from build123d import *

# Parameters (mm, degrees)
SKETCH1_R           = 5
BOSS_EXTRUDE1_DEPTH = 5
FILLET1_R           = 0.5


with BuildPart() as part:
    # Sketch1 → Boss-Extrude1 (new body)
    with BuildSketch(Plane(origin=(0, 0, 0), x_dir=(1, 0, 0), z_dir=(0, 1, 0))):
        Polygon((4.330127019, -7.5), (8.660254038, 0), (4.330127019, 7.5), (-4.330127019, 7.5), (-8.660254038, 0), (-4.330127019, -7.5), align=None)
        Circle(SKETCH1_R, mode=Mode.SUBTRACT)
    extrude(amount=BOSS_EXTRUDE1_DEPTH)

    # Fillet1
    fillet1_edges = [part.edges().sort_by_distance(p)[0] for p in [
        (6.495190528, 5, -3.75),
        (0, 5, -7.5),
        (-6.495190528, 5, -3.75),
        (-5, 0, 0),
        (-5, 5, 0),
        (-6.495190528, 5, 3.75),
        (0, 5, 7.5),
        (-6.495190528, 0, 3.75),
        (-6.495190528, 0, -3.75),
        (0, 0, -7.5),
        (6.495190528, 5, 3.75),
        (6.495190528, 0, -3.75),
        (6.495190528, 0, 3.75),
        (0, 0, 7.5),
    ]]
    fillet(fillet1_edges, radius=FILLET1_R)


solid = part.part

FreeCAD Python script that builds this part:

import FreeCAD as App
import Part
import Sketcher

V = App.Vector
Q = App.Units.Quantity


def edges_at(feature, points):
    """Names of the edges that pass closest to the given points."""
    edges = feature.Shape.Edges
    near = lambda p: min(range(len(edges)), key=lambda i: edges[i].distToShape(Part.Vertex(*p))[0])
    return sorted({f"Edge{near(p) + 1}" for p in points})

doc = App.newDocument("Part")
params = doc.addObject("Spreadsheet::Sheet", "Params")
for row, (alias, value) in enumerate([
    ("sketch1_diameter", "10 mm"),
    ("pad1_length", "5 mm"),
    ("fillet_radius", "0.5 mm"),
], start=1):
    params.set(f"A{row}", alias)
    params.set(f"B{row}", "=" + value)
    params.setAlias(f"B{row}", alias)

body = doc.addObject("PartDesign::Body", "Body")

# Sketch on XZ plane
sketch1 = body.newObject("Sketcher::SketchObject", "Sketch")
sketch1.AttachmentSupport = (doc.getObject("XZ_Plane"), [""])
sketch1.MapMode = "FlatFace"
sketch1.addGeometry(Part.LineSegment(V(4, 8, 0), V(9, 0, 0)), False)
sketch1.addGeometry(Part.LineSegment(V(9, 0, 0), V(4, -8, 0)), False)
sketch1.addGeometry(Part.LineSegment(V(4, -8, 0), V(-4, -8, 0)), False)
sketch1.addGeometry(Part.LineSegment(V(-4, -8, 0), V(-9, 0, 0)), False)
sketch1.addGeometry(Part.LineSegment(V(-9, 0, 0), V(-4, 8, 0)), False)
sketch1.addGeometry(Part.LineSegment(V(-4, 8, 0), V(4, 8, 0)), False)
sketch1.addGeometry(Part.Circle(V(0, 0, 0), V(0, 0, 1), 5), False)
sketch1.addConstraint(Sketcher.Constraint("Coincident", 0, 2, 1, 1))
sketch1.addConstraint(Sketcher.Constraint("Coincident", 1, 2, 2, 1))
sketch1.addConstraint(Sketcher.Constraint("Coincident", 2, 2, 3, 1))
sketch1.addConstraint(Sketcher.Constraint("Coincident", 3, 2, 4, 1))
sketch1.addConstraint(Sketcher.Constraint("Coincident", 4, 2, 5, 1))
sketch1.addConstraint(Sketcher.Constraint("Coincident", 5, 2, 0, 1))
sketch1.addConstraint(Sketcher.Constraint("Horizontal", 2))
sketch1.addConstraint(Sketcher.Constraint("Horizontal", 5))
sketch1.addConstraint(Sketcher.Constraint("Coincident", 6, 3, -1, 1))
sketch1.addConstraint(Sketcher.Constraint("Symmetric", 0, 2, 3, 2, -1, 1))
sketch1.addConstraint(Sketcher.Constraint("Symmetric", 1, 2, 4, 2, -1, 1))
sketch1.addConstraint(Sketcher.Constraint("PointOnObject", 0, 2, -1))
sketch1.addConstraint(Sketcher.Constraint("Parallel", 0, 3))
sketch1.addConstraint(Sketcher.Constraint("Vertical", 2, 2, 4, 2))
sketch1.addConstraint(Sketcher.Constraint("Diameter", 6, Q("10 mm")))
sketch1.addConstraint(Sketcher.Constraint("Angle", 0, Q("-60 deg")))
sketch1.addConstraint(Sketcher.Constraint("DistanceY", 2, 2, 4, 2, Q("15 mm")))
sketch1.addConstraint(Sketcher.Constraint("DistanceX", 2, 2, 2, 1, Q("8.660254 mm")))
sketch1.setExpression("Constraints[14]", "Params.sketch1_diameter")
pad1 = body.newObject("PartDesign::Pad", "Pad")
pad1.Profile = sketch1
pad1.setExpression("Length", "Params.pad1_length")
pad1.Reversed = True
doc.recompute()

fillet = body.newObject("PartDesign::Fillet", "Fillet")
fillet.Base = (pad1, edges_at(pad1, [
    (6.495, 5, -3.75),
    (0, 5, -7.5),
    (-6.495, 5, -3.75),
    (-5, 0, 0),
    (-5, 5, 0),
    (-6.495, 5, 3.75),
    (0, 5, 7.5),
    (-6.495, 0, 3.75),
    (-6.495, 0, -3.75),
    (0, 0, -7.5),
    (6.495, 5, 3.75),
    (6.495, 0, -3.75),
    (6.495, 0, 3.75),
    (0, 0, 7.5),
]))
fillet.setExpression("Radius", "Params.fillet_radius")

doc.recompute()
